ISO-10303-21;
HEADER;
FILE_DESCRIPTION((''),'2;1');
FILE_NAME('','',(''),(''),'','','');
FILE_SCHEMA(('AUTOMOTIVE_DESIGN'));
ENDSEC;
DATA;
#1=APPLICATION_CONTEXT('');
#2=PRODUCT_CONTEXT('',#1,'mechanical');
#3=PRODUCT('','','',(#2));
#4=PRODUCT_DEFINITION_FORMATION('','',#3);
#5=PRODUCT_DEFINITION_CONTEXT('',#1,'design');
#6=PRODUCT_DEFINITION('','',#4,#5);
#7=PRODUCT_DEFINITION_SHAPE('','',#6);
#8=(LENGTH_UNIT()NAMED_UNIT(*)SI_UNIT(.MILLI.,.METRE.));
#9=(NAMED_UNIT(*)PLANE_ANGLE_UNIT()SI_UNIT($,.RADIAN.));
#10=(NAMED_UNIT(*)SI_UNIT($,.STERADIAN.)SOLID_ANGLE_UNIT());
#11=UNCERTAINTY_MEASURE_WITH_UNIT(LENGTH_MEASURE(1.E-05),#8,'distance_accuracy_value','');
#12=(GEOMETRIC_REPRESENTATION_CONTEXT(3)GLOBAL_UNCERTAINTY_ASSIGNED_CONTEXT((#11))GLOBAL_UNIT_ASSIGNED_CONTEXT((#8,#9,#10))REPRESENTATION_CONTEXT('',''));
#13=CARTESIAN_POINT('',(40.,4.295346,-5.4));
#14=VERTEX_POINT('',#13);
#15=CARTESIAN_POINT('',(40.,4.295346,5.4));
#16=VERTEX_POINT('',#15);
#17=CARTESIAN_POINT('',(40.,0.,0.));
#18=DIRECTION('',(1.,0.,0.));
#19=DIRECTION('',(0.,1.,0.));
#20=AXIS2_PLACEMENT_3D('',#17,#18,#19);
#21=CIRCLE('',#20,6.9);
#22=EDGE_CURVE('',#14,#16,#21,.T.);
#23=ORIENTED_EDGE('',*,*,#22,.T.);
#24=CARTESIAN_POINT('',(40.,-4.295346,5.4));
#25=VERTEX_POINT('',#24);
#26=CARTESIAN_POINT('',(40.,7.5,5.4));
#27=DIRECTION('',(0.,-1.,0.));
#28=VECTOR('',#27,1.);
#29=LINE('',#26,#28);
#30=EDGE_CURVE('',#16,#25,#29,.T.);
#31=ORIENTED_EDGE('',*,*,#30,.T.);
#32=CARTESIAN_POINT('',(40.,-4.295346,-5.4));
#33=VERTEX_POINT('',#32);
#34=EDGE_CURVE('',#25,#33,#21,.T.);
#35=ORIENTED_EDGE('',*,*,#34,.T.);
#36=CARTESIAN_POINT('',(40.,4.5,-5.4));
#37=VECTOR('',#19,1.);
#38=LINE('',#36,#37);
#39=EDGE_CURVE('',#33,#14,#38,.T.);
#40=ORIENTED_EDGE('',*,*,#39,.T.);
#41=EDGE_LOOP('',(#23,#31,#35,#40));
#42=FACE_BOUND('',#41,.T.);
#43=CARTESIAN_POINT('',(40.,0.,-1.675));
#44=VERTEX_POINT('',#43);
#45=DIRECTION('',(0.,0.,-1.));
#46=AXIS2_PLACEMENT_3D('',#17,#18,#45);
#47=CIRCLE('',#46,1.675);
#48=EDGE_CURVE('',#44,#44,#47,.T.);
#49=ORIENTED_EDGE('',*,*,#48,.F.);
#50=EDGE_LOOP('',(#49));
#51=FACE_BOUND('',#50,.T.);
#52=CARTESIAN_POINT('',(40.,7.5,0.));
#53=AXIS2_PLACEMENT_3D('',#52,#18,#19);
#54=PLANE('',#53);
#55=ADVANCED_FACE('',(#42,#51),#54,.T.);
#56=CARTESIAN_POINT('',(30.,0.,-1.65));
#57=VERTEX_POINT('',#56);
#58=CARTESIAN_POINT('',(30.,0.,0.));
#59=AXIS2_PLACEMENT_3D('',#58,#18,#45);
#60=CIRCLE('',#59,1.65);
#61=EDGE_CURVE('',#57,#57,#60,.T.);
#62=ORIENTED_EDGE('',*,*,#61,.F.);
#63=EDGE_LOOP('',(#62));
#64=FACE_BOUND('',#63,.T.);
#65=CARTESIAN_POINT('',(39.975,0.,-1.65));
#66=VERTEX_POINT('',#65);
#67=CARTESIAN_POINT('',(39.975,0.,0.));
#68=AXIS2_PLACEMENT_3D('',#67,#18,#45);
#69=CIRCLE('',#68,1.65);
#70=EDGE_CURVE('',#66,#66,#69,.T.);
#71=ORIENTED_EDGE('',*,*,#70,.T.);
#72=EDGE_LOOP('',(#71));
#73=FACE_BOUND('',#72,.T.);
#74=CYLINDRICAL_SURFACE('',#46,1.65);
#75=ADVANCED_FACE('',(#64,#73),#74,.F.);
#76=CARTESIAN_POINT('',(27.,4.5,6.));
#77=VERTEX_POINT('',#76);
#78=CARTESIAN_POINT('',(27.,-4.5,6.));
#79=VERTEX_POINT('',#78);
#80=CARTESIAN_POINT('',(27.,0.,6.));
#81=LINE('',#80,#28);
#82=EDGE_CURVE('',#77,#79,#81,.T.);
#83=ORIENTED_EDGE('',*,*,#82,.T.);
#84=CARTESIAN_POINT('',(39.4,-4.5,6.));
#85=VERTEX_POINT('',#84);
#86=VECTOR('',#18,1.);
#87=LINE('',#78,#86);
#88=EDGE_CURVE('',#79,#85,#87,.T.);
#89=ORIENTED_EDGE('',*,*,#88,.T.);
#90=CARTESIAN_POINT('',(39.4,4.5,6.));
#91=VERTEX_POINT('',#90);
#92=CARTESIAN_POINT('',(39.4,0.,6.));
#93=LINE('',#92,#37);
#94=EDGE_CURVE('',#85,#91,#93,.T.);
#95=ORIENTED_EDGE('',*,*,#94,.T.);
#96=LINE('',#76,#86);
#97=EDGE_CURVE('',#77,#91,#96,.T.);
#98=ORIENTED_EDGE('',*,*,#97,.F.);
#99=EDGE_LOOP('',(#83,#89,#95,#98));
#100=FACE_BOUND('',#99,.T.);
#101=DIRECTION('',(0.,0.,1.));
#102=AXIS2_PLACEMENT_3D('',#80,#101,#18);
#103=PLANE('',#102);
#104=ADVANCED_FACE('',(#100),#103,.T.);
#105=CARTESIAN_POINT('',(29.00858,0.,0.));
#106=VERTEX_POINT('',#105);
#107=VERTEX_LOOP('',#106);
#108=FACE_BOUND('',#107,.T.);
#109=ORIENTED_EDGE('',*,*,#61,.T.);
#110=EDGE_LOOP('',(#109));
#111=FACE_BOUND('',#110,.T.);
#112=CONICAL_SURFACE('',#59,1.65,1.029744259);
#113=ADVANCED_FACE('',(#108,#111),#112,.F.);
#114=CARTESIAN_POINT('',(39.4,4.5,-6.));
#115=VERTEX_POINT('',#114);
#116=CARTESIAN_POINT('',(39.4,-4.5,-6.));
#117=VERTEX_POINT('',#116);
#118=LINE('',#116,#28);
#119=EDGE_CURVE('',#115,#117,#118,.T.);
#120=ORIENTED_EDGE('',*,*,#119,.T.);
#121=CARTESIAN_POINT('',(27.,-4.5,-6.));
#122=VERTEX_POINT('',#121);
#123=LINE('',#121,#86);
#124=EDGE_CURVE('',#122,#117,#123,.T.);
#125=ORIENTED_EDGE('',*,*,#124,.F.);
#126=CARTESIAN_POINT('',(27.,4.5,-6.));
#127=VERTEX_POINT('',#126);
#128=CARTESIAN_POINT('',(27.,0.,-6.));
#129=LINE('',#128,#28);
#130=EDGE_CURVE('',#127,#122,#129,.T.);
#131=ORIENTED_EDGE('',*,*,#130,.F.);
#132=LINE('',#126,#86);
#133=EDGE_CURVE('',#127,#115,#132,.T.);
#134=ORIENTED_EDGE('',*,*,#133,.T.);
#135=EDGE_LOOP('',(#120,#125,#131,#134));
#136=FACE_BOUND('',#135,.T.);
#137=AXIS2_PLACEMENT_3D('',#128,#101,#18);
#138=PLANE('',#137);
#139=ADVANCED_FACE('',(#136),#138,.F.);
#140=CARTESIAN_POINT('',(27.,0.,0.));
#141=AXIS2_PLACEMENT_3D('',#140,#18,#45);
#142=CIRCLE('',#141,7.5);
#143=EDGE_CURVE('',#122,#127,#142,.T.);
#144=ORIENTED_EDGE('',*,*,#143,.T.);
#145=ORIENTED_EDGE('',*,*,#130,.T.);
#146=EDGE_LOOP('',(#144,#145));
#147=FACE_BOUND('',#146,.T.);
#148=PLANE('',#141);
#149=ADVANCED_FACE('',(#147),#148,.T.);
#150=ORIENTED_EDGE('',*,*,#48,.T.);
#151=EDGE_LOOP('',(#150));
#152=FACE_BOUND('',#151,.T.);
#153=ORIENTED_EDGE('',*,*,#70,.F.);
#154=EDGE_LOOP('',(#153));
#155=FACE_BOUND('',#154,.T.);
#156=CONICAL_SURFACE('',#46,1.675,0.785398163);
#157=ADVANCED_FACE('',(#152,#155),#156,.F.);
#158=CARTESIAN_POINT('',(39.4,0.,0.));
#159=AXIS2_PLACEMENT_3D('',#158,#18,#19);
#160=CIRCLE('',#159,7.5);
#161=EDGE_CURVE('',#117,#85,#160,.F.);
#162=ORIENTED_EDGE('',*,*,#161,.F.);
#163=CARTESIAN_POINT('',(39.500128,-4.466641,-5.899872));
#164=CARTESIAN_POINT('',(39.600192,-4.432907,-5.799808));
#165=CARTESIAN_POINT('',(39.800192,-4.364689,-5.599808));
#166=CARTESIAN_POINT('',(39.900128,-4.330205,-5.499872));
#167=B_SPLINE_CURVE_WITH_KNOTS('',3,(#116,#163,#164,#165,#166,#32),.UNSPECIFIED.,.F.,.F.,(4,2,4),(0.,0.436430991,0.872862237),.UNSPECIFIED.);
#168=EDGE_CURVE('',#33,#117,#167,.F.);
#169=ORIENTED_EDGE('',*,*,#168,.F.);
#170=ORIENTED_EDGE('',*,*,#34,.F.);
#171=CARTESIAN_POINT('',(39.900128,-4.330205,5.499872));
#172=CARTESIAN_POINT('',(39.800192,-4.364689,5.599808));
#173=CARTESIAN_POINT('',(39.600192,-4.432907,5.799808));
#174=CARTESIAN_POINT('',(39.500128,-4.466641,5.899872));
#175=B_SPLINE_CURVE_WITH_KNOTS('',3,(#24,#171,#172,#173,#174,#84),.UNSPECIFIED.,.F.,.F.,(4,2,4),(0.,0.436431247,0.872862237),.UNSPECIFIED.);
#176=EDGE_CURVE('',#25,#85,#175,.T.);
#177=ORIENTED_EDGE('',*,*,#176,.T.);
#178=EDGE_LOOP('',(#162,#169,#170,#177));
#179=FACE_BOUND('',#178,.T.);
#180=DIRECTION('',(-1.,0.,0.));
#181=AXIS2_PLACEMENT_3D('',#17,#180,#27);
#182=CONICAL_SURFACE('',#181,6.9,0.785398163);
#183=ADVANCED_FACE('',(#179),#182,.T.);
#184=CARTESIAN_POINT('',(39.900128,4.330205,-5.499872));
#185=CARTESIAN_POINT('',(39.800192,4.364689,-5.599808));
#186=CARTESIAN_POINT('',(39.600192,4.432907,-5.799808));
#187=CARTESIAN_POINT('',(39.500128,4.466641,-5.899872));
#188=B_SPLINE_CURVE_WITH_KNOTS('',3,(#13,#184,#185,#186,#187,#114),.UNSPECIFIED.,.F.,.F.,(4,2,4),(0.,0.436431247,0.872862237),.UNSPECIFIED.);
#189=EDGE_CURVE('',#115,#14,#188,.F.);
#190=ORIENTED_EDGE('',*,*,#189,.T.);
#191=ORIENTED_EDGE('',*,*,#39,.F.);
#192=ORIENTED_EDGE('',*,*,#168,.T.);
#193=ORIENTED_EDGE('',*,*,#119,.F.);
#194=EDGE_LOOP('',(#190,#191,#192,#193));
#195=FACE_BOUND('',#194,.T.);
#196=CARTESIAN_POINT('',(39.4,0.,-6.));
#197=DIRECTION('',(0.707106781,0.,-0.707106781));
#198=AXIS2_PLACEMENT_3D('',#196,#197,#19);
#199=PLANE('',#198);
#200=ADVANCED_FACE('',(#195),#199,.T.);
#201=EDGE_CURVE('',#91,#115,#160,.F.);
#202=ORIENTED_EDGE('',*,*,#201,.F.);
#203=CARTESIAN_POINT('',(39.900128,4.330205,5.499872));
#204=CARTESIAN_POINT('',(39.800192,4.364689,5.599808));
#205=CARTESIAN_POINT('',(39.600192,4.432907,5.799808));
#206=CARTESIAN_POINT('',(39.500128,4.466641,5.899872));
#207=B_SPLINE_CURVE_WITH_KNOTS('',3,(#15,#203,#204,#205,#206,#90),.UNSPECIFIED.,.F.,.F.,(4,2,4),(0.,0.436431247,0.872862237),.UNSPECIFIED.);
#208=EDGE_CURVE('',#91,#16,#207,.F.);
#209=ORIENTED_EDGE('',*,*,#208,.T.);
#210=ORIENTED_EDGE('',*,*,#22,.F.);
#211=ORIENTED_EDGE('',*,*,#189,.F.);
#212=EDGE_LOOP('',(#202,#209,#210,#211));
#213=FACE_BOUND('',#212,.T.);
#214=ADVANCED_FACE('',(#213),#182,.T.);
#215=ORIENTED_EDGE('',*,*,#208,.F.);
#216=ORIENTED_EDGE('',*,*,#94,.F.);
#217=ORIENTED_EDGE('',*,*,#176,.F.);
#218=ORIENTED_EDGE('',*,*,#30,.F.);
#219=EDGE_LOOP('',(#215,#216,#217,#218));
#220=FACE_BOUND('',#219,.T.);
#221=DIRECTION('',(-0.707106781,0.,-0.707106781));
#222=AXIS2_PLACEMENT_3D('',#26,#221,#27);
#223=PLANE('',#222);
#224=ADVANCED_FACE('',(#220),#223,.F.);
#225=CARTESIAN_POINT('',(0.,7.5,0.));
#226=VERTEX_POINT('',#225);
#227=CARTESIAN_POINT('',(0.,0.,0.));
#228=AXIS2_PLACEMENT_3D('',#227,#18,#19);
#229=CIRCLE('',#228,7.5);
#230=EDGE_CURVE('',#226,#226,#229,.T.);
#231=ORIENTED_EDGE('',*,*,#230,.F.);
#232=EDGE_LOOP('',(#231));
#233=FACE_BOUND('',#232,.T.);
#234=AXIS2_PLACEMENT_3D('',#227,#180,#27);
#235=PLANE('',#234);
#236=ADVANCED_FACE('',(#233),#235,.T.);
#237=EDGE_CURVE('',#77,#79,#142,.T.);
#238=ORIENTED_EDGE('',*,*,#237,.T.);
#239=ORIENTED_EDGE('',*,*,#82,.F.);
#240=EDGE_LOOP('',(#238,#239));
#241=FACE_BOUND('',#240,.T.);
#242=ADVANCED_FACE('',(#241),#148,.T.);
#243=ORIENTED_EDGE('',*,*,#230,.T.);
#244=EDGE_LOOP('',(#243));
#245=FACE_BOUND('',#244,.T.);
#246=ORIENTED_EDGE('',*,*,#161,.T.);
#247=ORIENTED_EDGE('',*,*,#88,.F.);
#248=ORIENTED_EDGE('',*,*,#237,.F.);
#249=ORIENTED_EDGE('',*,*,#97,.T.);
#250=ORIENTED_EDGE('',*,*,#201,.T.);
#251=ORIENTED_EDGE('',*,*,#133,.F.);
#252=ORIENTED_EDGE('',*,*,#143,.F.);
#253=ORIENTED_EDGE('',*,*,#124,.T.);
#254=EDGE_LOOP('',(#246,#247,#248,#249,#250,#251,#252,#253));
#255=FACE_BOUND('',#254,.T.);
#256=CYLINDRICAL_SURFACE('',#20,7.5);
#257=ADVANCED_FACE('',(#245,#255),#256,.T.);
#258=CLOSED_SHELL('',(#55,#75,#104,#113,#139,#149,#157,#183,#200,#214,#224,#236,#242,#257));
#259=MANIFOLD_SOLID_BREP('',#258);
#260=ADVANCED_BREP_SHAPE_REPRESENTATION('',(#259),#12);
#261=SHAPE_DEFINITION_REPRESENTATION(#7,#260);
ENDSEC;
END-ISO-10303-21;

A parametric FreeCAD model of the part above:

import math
import FreeCAD as App
import Part
import Sketcher
Q = App.Units.Quantity


def edges_at(feature, points):
    """Names of the edges that pass closest to the given points."""
    edges = feature.Shape.Edges
    near = lambda p: min(range(len(edges)), key=lambda i: edges[i].distToShape(Part.Vertex(*p))[0])
    return sorted({f"Edge{near(p) + 1}" for p in points})


def add_polygon(sketch, points):
    """Adds a closed chain of lines whose ends are joined by coincident constraints."""
    first, n = sketch.GeometryCount, len(points)
    for a, b in zip(points, points[1:] + points[:1]):
        sketch.addGeometry(Part.LineSegment(App.Vector(*a, 0), App.Vector(*b, 0)), False)
    for i in range(n):
        sketch.addConstraint(Sketcher.Constraint("Coincident", first + i, 2, first + (i + 1) % n, 1))

doc = App.newDocument("Part")
body = doc.addObject("PartDesign::Body", "Body")

sketch1 = doc.addObject("Sketcher::SketchObject", "Sketch")
body.addObject(sketch1)
sketch1.AttachmentSupport = (doc.XY_Plane, [""])
sketch1.MapMode = "FlatFace"
add_polygon(sketch1, [(0, 8), (0, 0), (40, 0), (40, 8)])
sketch1.addConstraint(Sketcher.Constraint("Vertical", 0))
sketch1.addConstraint(Sketcher.Constraint("Horizontal", 1))
sketch1.addConstraint(Sketcher.Constraint("Vertical", 2))
sketch1.addConstraint(Sketcher.Constraint("Horizontal", 3))
sketch1.addConstraint(Sketcher.Constraint("Coincident", 0, 2, -1, 1))
sketch1.addConstraint(Sketcher.Constraint("DistanceX", 1, 1, 1, 2, Q("40 mm")))
sketch1.addConstraint(Sketcher.Constraint("DistanceY", 0, 2, 0, 1, Q("7.5 mm")))
revolution = doc.addObject("PartDesign::Revolution", "Revolution")
body.addObject(revolution)
revolution.Profile = sketch1
revolution.ReferenceAxis = (sketch1, ["H_Axis"])
revolution.Angle = 360

sketch2 = doc.addObject("Sketcher::SketchObject", "Sketch001")
body.addObject(sketch2)
sketch2.AttachmentSupport = (doc.YZ_Plane, [""])
sketch2.MapMode = "FlatFace"
sketch2.AttachmentOffset = App.Placement(App.Vector(0, 0, 40), App.Rotation())
sketch2.addGeometry(Part.Circle(App.Vector(0, 0, 0), App.Vector(0, 0, 1), 1.6), False)
sketch2.addConstraint(Sketcher.Constraint("Coincident", 0, 3, -1, 1))
sketch2.addConstraint(Sketcher.Constraint("Diameter", 0, Q("3.3 mm")))
doc.recompute()
hole = doc.addObject("PartDesign::Hole", "Hole")
body.addObject(hole)
hole.Profile = sketch2
hole.ThreadType = "None"
hole.Diameter = 3.3
hole.DepthType = "Dimension"
hole.Depth = 10
hole.DrillPoint = "Angled"
hole.DrillPointAngle = 118
hole.HoleCutType = "Countersink"
hole.HoleCutDiameter = 3.35
hole.HoleCutCountersinkAngle = 90

sketch3 = doc.addObject("Sketcher::SketchObject", "Sketch002")
body.addObject(sketch3)
sketch3.AttachmentSupport = (doc.YZ_Plane, [""])
sketch3.MapMode = "FlatFace"
sketch3.AttachmentOffset = App.Placement(App.Vector(0, 0, 40), App.Rotation())
sketch3.addGeometry(Part.LineSegment(App.Vector(-4.5, 6, 0), App.Vector(4.5, 6, 0)), False)
sketch3.addGeometry(Part.ArcOfCircle(Part.Circle(App.Vector(0, 0, 0), App.Vector(0, 0, 1), 7.5), math.radians(53), math.radians(127)), False)
sketch3.addGeometry(Part.ArcOfCircle(Part.Circle(App.Vector(0, 0, 0), App.Vector(0, 0, 1), 7.5), math.radians(-90), math.radians(-53)), False)
sketch3.addGeometry(Part.LineSegment(App.Vector(4.5, -6, 0), App.Vector(-4.5, -6, 0)), False)
sketch3.addGeometry(Part.ArcOfCircle(Part.Circle(App.Vector(0, 0, 0), App.Vector(0, 0, 1), 7.5), math.radians(-127), math.radians(-90)), False)
sketch3.addConstraint(Sketcher.Constraint("Coincident", 0, 1, 1, 2))
sketch3.addConstraint(Sketcher.Constraint("Coincident", 1, 1, 0, 2))
sketch3.addConstraint(Sketcher.Constraint("Coincident", 2, 2, 3, 1))
sketch3.addConstraint(Sketcher.Constraint("Coincident", 3, 2, 4, 1))
sketch3.addConstraint(Sketcher.Constraint("Tangent", 4, 2, 2, 1))
sketch3.addConstraint(Sketcher.Constraint("Horizontal", 0))
sketch3.addConstraint(Sketcher.Constraint("Horizontal", 3))
sketch3.addConstraint(Sketcher.Constraint("Coincident", 1, 3, -1, 1))
sketch3.addConstraint(Sketcher.Constraint("Coincident", 2, 3, -1, 1))
sketch3.addConstraint(Sketcher.Constraint("Equal", 1, 2))
sketch3.addConstraint(Sketcher.Constraint("Equal", 2, 4))
sketch3.addConstraint(Sketcher.Constraint("PointOnObject", 4, 2, -2))
sketch3.addConstraint(Sketcher.Constraint("Vertical", 1, 1, 2, 2))
sketch3.addConstraint(Sketcher.Constraint("Radius", 1, Q("7.5 mm")))
sketch3.addConstraint(Sketcher.Constraint("DistanceX", 0, 1, 0, 2, Q("9 mm")))
pocket1 = doc.addObject("PartDesign::Pocket", "Pocket")
body.addObject(pocket1)
pocket1.Profile = sketch3
pocket1.Length = 13
doc.recompute()

chamfer = doc.addObject("PartDesign::Chamfer", "Chamfer")
body.addObject(chamfer)
chamfer.Base = (pocket1, edges_at(pocket1, [
    (40, -7.5, 0),
    (40, 6.708, -3.354),
    (40, 0, 6),
    (40, 0, -6),
]))
chamfer.Size = 0.6

doc.recompute()
